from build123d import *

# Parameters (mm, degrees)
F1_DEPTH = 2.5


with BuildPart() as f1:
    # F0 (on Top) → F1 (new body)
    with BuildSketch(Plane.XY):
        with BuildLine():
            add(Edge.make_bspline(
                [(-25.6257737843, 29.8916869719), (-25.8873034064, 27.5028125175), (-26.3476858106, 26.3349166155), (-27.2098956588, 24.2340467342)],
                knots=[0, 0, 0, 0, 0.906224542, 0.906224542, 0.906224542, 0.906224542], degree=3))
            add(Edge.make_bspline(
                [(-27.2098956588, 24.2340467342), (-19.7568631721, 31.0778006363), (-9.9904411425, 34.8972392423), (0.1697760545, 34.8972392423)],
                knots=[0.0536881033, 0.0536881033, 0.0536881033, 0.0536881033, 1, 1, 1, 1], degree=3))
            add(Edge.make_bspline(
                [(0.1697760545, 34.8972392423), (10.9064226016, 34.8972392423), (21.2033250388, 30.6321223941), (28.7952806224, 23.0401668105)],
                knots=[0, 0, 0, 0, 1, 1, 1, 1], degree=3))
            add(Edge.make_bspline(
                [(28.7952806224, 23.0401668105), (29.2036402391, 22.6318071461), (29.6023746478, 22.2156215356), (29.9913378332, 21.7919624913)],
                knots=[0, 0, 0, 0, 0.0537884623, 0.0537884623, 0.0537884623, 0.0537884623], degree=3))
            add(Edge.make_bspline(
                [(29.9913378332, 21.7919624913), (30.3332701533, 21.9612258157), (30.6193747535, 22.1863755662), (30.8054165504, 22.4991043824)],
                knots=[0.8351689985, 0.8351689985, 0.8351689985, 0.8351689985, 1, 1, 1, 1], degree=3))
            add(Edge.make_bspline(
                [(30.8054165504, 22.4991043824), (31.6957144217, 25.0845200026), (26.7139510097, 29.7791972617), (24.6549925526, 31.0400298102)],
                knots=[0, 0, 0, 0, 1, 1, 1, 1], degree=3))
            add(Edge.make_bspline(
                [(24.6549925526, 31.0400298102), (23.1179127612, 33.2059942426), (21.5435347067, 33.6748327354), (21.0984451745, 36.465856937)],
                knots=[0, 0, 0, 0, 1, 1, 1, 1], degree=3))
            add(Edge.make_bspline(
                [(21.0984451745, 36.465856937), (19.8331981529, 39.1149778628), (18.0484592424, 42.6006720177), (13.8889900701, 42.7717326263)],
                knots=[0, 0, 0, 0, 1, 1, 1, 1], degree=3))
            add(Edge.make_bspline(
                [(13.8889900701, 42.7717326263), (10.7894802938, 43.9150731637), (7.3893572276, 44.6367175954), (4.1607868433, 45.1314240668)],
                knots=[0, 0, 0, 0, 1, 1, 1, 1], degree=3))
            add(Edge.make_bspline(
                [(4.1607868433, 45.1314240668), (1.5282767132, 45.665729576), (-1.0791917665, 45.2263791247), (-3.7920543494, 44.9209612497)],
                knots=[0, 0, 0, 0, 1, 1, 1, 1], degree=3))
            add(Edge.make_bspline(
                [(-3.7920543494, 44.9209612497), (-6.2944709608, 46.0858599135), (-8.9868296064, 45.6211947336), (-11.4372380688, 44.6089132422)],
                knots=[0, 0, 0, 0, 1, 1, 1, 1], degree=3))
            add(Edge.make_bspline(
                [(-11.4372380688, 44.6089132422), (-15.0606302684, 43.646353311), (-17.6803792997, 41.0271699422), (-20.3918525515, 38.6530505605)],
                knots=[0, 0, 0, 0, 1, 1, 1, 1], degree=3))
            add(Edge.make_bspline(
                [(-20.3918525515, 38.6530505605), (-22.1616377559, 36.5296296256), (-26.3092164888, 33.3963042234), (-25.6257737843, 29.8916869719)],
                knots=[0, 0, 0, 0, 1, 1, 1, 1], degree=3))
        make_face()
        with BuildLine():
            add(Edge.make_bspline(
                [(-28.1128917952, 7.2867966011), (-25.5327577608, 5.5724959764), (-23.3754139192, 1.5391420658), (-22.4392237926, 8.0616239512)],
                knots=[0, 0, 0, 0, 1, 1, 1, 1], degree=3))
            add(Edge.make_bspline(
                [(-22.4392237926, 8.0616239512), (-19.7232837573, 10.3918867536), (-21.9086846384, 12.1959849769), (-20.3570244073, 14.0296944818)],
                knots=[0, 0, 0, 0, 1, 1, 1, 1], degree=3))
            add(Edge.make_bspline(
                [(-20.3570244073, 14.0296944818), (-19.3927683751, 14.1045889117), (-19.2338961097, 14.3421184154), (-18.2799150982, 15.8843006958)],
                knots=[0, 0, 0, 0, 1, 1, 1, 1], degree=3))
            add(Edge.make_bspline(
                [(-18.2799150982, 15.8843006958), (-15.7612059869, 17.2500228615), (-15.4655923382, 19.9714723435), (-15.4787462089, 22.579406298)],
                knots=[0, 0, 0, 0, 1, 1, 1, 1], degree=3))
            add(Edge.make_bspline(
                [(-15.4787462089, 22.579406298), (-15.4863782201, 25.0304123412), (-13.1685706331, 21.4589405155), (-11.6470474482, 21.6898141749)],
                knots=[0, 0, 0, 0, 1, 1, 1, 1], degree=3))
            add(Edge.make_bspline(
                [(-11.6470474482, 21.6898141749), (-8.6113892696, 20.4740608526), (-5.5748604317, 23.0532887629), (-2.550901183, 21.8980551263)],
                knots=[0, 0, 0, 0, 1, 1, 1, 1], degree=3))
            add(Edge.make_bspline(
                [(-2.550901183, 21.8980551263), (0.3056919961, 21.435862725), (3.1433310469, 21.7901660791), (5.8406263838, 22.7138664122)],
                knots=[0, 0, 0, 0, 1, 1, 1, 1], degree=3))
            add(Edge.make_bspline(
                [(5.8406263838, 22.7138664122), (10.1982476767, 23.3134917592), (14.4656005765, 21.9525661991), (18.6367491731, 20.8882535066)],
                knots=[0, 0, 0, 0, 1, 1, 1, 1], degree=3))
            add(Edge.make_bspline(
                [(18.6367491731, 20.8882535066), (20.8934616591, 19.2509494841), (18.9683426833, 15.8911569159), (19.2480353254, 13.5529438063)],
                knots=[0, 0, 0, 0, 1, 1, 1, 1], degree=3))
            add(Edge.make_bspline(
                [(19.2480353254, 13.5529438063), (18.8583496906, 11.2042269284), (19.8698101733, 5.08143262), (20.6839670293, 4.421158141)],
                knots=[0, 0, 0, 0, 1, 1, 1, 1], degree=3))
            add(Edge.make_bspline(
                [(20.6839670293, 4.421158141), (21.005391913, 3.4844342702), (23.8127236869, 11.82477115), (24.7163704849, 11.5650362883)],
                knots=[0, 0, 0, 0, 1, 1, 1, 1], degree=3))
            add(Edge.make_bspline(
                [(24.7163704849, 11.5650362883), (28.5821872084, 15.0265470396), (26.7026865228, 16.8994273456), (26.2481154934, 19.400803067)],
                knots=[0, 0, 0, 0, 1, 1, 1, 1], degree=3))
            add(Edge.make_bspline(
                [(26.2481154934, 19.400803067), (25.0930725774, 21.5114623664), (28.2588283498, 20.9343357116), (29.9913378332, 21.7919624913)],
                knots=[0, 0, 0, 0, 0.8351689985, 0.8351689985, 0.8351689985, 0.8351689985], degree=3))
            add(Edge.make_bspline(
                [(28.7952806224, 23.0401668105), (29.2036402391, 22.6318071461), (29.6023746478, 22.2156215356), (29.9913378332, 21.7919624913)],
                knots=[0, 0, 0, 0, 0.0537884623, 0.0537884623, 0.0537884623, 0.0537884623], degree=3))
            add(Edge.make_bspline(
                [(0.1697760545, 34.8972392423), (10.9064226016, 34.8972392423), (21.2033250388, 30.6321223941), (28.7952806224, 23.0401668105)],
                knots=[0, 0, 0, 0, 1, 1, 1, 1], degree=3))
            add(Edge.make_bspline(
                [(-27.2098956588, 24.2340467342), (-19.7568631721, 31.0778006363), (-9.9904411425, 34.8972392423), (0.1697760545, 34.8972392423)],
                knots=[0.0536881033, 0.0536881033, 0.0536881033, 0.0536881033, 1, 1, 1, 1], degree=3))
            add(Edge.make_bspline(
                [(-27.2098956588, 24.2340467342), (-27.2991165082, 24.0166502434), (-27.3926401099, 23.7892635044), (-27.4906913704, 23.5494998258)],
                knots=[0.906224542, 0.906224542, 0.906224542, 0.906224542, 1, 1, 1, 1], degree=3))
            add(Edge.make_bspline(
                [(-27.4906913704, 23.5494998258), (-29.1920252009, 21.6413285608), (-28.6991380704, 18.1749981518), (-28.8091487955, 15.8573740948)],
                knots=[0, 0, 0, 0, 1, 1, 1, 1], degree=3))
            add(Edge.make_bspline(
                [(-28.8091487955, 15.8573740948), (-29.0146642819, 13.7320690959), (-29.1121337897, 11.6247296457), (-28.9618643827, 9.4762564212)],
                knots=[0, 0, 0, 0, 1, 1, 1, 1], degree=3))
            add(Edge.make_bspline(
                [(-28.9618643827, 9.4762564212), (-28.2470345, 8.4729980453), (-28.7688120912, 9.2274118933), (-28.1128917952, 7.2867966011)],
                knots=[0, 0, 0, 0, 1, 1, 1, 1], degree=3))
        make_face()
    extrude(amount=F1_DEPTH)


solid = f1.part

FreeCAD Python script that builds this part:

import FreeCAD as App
import Part
import Sketcher

doc = App.newDocument("Part")
body = doc.addObject("PartDesign::Body", "Body")

sketch1 = body.newObject("Sketcher::SketchObject", "Sketch")
sketch1.AttachmentSupport = (doc.getObject("XY_Plane"), [""])
sketch1.MapMode = "FlatFace"
sketch1.addGeometry([
    Part.BSplineCurve([App.Vector(-25.625774, 29.891687, 0), App.Vector(-25.887303, 27.502813, 0), App.Vector(-26.347686, 26.334917, 0), App.Vector(-27.209896, 24.234047, 0)], [4, 4], [0, 0.906224542], False, 3, [1, 1, 1, 1], False),
    Part.BSplineCurve([App.Vector(-27.209896, 24.234047, 0), App.Vector(-27.299117, 24.01665, 0), App.Vector(-27.39264, 23.789264, 0), App.Vector(-27.490691, 23.5495, 0)], [4, 4], [0.906224542, 1], False, 3, [1, 1, 1, 1], False),
    Part.BSplineCurve([App.Vector(-27.490691, 23.5495, 0), App.Vector(-29.192025, 21.641329, 0), App.Vector(-28.699138, 18.174998, 0), App.Vector(-28.809149, 15.857374, 0)], [4, 4], [0, 1], False, 3, [1, 1, 1, 1], False),
    Part.BSplineCurve([App.Vector(-28.809149, 15.857374, 0), App.Vector(-29.014664, 13.732069, 0), App.Vector(-29.112134, 11.62473, 0), App.Vector(-28.961864, 9.476256, 0)], [4, 4], [0, 1], False, 3, [1, 1, 1, 1], False),
    Part.BSplineCurve([App.Vector(-28.961864, 9.476256, 0), App.Vector(-28.247035, 8.472998, 0), App.Vector(-28.768812, 9.227412, 0), App.Vector(-28.112892, 7.286797, 0)], [4, 4], [0, 1], False, 3, [1, 1, 1, 1], False),
    Part.BSplineCurve([App.Vector(-28.112892, 7.286797, 0), App.Vector(-25.532758, 5.572496, 0), App.Vector(-23.375414, 1.539142, 0), App.Vector(-22.439224, 8.061624, 0)], [4, 4], [0, 1], False, 3, [1, 1, 1, 1], False),
    Part.BSplineCurve([App.Vector(-22.439224, 8.061624, 0), App.Vector(-19.723284, 10.391887, 0), App.Vector(-21.908685, 12.195985, 0), App.Vector(-20.357024, 14.029694, 0)], [4, 4], [0, 1], False, 3, [1, 1, 1, 1], False),
    Part.BSplineCurve([App.Vector(-20.357024, 14.029694, 0), App.Vector(-19.392768, 14.104589, 0), App.Vector(-19.233896, 14.342118, 0), App.Vector(-18.279915, 15.884301, 0)], [4, 4], [0, 1], False, 3, [1, 1, 1, 1], False),
    Part.BSplineCurve([App.Vector(-18.279915, 15.884301, 0), App.Vector(-15.761206, 17.250023, 0), App.Vector(-15.465592, 19.971472, 0), App.Vector(-15.478746, 22.579406, 0)], [4, 4], [0, 1], False, 3, [1, 1, 1, 1], False),
    Part.BSplineCurve([App.Vector(-15.478746, 22.579406, 0), App.Vector(-15.486378, 25.030412, 0), App.Vector(-13.168571, 21.458941, 0), App.Vector(-11.647047, 21.689814, 0)], [4, 4], [0, 1], False, 3, [1, 1, 1, 1], False),
    Part.BSplineCurve([App.Vector(-11.647047, 21.689814, 0), App.Vector(-8.611389, 20.474061, 0), App.Vector(-5.57486, 23.053289, 0), App.Vector(-2.550901, 21.898055, 0)], [4, 4], [0, 1], False, 3, [1, 1, 1, 1], False),
    Part.BSplineCurve([App.Vector(-2.550901, 21.898055, 0), App.Vector(0.305692, 21.435863, 0), App.Vector(3.143331, 21.790166, 0), App.Vector(5.840626, 22.713866, 0)], [4, 4], [0, 1], False, 3, [1, 1, 1, 1], False),
    Part.BSplineCurve([App.Vector(5.840626, 22.713866, 0), App.Vector(10.198248, 23.313492, 0), App.Vector(14.465601, 21.952566, 0), App.Vector(18.636749, 20.888254, 0)], [4, 4], [0, 1], False, 3, [1, 1, 1, 1], False),
    Part.BSplineCurve([App.Vector(18.636749, 20.888254, 0), App.Vector(20.893462, 19.250949, 0), App.Vector(18.968343, 15.891157, 0), App.Vector(19.248035, 13.552944, 0)], [4, 4], [0, 1], False, 3, [1, 1, 1, 1], False),
    Part.BSplineCurve([App.Vector(19.248035, 13.552944, 0), App.Vector(18.85835, 11.204227, 0), App.Vector(19.86981, 5.081433, 0), App.Vector(20.683967, 4.421158, 0)], [4, 4], [0, 1], False, 3, [1, 1, 1, 1], False),
    Part.BSplineCurve([App.Vector(20.683967, 4.421158, 0), App.Vector(21.005392, 3.484434, 0), App.Vector(23.812724, 11.824771, 0), App.Vector(24.71637, 11.565036, 0)], [4, 4], [0, 1], False, 3, [1, 1, 1, 1], False),
    Part.BSplineCurve([App.Vector(24.71637, 11.565036, 0), App.Vector(28.582187, 15.026547, 0), App.Vector(26.702687, 16.899427, 0), App.Vector(26.248115, 19.400803, 0)], [4, 4], [0, 1], False, 3, [1, 1, 1, 1], False),
    Part.BSplineCurve([App.Vector(26.248115, 19.400803, 0), App.Vector(25.093073, 21.511462, 0), App.Vector(28.258828, 20.934336, 0), App.Vector(29.991338, 21.791962, 0)], [4, 4], [0, 0.835168999], False, 3, [1, 1, 1, 1], False),
    Part.BSplineCurve([App.Vector(29.991338, 21.791962, 0), App.Vector(30.33327, 21.961226, 0), App.Vector(30.619375, 22.186376, 0), App.Vector(30.805417, 22.499104, 0)], [4, 4], [0.835168999, 1], False, 3, [1, 1, 1, 1], False),
    Part.BSplineCurve([App.Vector(30.805417, 22.499104, 0), App.Vector(31.695714, 25.08452, 0), App.Vector(26.713951, 29.779197, 0), App.Vector(24.654993, 31.04003, 0)], [4, 4], [0, 1], False, 3, [1, 1, 1, 1], False),
    Part.BSplineCurve([App.Vector(24.654993, 31.04003, 0), App.Vector(23.117913, 33.205994, 0), App.Vector(21.543535, 33.674833, 0), App.Vector(21.098445, 36.465857, 0)], [4, 4], [0, 1], False, 3, [1, 1, 1, 1], False),
    Part.BSplineCurve([App.Vector(21.098445, 36.465857, 0), App.Vector(19.833198, 39.114978, 0), App.Vector(18.048459, 42.600672, 0), App.Vector(13.88899, 42.771733, 0)], [4, 4], [0, 1], False, 3, [1, 1, 1, 1], False),
    Part.BSplineCurve([App.Vector(13.88899, 42.771733, 0), App.Vector(10.78948, 43.915073, 0), App.Vector(7.389357, 44.636718, 0), App.Vector(4.160787, 45.131424, 0)], [4, 4], [0, 1], False, 3, [1, 1, 1, 1], False),
    Part.BSplineCurve([App.Vector(4.160787, 45.131424, 0), App.Vector(1.528277, 45.66573, 0), App.Vector(-1.079192, 45.226379, 0), App.Vector(-3.792054, 44.920961, 0)], [4, 4], [0, 1], False, 3, [1, 1, 1, 1], False),
    Part.BSplineCurve([App.Vector(-3.792054, 44.920961, 0), App.Vector(-6.294471, 46.08586, 0), App.Vector(-8.98683, 45.621195, 0), App.Vector(-11.437238, 44.608913, 0)], [4, 4], [0, 1], False, 3, [1, 1, 1, 1], False),
    Part.BSplineCurve([App.Vector(-11.437238, 44.608913, 0), App.Vector(-15.06063, 43.646353, 0), App.Vector(-17.680379, 41.02717, 0), App.Vector(-20.391853, 38.653051, 0)], [4, 4], [0, 1], False, 3, [1, 1, 1, 1], False),
    Part.BSplineCurve([App.Vector(-20.391853, 38.653051, 0), App.Vector(-22.161638, 36.52963, 0), App.Vector(-26.309216, 33.396304, 0), App.Vector(-25.625774, 29.891687, 0)], [4, 4], [0, 1], False, 3, [1, 1, 1, 1], False),
], False)
sketch1.addConstraint([
    Sketcher.Constraint("Block", 0),
    Sketcher.Constraint("Block", 1),
    Sketcher.Constraint("Block", 2),
    Sketcher.Constraint("Block", 3),
    Sketcher.Constraint("Block", 4),
    Sketcher.Constraint("Block", 5),
    Sketcher.Constraint("Block", 6),
    Sketcher.Constraint("Block", 7),
    Sketcher.Constraint("Block", 8),
    Sketcher.Constraint("Block", 9),
    Sketcher.Constraint("Block", 10),
    Sketcher.Constraint("Block", 11),
    Sketcher.Constraint("Block", 12),
    Sketcher.Constraint("Block", 13),
    Sketcher.Constraint("Block", 14),
    Sketcher.Constraint("Block", 15),
    Sketcher.Constraint("Block", 16),
    Sketcher.Constraint("Block", 17),
    Sketcher.Constraint("Block", 18),
    Sketcher.Constraint("Block", 19),
    Sketcher.Constraint("Block", 20),
    Sketcher.Constraint("Block", 21),
    Sketcher.Constraint("Block", 22),
    Sketcher.Constraint("Block", 23),
    Sketcher.Constraint("Block", 24),
    Sketcher.Constraint("Block", 25),
    Sketcher.Constraint("Block", 26),
])
pad1 = body.newObject("PartDesign::Pad", "Pad")
pad1.Profile = sketch1
pad1.Length = 2.5

doc.recompute()
